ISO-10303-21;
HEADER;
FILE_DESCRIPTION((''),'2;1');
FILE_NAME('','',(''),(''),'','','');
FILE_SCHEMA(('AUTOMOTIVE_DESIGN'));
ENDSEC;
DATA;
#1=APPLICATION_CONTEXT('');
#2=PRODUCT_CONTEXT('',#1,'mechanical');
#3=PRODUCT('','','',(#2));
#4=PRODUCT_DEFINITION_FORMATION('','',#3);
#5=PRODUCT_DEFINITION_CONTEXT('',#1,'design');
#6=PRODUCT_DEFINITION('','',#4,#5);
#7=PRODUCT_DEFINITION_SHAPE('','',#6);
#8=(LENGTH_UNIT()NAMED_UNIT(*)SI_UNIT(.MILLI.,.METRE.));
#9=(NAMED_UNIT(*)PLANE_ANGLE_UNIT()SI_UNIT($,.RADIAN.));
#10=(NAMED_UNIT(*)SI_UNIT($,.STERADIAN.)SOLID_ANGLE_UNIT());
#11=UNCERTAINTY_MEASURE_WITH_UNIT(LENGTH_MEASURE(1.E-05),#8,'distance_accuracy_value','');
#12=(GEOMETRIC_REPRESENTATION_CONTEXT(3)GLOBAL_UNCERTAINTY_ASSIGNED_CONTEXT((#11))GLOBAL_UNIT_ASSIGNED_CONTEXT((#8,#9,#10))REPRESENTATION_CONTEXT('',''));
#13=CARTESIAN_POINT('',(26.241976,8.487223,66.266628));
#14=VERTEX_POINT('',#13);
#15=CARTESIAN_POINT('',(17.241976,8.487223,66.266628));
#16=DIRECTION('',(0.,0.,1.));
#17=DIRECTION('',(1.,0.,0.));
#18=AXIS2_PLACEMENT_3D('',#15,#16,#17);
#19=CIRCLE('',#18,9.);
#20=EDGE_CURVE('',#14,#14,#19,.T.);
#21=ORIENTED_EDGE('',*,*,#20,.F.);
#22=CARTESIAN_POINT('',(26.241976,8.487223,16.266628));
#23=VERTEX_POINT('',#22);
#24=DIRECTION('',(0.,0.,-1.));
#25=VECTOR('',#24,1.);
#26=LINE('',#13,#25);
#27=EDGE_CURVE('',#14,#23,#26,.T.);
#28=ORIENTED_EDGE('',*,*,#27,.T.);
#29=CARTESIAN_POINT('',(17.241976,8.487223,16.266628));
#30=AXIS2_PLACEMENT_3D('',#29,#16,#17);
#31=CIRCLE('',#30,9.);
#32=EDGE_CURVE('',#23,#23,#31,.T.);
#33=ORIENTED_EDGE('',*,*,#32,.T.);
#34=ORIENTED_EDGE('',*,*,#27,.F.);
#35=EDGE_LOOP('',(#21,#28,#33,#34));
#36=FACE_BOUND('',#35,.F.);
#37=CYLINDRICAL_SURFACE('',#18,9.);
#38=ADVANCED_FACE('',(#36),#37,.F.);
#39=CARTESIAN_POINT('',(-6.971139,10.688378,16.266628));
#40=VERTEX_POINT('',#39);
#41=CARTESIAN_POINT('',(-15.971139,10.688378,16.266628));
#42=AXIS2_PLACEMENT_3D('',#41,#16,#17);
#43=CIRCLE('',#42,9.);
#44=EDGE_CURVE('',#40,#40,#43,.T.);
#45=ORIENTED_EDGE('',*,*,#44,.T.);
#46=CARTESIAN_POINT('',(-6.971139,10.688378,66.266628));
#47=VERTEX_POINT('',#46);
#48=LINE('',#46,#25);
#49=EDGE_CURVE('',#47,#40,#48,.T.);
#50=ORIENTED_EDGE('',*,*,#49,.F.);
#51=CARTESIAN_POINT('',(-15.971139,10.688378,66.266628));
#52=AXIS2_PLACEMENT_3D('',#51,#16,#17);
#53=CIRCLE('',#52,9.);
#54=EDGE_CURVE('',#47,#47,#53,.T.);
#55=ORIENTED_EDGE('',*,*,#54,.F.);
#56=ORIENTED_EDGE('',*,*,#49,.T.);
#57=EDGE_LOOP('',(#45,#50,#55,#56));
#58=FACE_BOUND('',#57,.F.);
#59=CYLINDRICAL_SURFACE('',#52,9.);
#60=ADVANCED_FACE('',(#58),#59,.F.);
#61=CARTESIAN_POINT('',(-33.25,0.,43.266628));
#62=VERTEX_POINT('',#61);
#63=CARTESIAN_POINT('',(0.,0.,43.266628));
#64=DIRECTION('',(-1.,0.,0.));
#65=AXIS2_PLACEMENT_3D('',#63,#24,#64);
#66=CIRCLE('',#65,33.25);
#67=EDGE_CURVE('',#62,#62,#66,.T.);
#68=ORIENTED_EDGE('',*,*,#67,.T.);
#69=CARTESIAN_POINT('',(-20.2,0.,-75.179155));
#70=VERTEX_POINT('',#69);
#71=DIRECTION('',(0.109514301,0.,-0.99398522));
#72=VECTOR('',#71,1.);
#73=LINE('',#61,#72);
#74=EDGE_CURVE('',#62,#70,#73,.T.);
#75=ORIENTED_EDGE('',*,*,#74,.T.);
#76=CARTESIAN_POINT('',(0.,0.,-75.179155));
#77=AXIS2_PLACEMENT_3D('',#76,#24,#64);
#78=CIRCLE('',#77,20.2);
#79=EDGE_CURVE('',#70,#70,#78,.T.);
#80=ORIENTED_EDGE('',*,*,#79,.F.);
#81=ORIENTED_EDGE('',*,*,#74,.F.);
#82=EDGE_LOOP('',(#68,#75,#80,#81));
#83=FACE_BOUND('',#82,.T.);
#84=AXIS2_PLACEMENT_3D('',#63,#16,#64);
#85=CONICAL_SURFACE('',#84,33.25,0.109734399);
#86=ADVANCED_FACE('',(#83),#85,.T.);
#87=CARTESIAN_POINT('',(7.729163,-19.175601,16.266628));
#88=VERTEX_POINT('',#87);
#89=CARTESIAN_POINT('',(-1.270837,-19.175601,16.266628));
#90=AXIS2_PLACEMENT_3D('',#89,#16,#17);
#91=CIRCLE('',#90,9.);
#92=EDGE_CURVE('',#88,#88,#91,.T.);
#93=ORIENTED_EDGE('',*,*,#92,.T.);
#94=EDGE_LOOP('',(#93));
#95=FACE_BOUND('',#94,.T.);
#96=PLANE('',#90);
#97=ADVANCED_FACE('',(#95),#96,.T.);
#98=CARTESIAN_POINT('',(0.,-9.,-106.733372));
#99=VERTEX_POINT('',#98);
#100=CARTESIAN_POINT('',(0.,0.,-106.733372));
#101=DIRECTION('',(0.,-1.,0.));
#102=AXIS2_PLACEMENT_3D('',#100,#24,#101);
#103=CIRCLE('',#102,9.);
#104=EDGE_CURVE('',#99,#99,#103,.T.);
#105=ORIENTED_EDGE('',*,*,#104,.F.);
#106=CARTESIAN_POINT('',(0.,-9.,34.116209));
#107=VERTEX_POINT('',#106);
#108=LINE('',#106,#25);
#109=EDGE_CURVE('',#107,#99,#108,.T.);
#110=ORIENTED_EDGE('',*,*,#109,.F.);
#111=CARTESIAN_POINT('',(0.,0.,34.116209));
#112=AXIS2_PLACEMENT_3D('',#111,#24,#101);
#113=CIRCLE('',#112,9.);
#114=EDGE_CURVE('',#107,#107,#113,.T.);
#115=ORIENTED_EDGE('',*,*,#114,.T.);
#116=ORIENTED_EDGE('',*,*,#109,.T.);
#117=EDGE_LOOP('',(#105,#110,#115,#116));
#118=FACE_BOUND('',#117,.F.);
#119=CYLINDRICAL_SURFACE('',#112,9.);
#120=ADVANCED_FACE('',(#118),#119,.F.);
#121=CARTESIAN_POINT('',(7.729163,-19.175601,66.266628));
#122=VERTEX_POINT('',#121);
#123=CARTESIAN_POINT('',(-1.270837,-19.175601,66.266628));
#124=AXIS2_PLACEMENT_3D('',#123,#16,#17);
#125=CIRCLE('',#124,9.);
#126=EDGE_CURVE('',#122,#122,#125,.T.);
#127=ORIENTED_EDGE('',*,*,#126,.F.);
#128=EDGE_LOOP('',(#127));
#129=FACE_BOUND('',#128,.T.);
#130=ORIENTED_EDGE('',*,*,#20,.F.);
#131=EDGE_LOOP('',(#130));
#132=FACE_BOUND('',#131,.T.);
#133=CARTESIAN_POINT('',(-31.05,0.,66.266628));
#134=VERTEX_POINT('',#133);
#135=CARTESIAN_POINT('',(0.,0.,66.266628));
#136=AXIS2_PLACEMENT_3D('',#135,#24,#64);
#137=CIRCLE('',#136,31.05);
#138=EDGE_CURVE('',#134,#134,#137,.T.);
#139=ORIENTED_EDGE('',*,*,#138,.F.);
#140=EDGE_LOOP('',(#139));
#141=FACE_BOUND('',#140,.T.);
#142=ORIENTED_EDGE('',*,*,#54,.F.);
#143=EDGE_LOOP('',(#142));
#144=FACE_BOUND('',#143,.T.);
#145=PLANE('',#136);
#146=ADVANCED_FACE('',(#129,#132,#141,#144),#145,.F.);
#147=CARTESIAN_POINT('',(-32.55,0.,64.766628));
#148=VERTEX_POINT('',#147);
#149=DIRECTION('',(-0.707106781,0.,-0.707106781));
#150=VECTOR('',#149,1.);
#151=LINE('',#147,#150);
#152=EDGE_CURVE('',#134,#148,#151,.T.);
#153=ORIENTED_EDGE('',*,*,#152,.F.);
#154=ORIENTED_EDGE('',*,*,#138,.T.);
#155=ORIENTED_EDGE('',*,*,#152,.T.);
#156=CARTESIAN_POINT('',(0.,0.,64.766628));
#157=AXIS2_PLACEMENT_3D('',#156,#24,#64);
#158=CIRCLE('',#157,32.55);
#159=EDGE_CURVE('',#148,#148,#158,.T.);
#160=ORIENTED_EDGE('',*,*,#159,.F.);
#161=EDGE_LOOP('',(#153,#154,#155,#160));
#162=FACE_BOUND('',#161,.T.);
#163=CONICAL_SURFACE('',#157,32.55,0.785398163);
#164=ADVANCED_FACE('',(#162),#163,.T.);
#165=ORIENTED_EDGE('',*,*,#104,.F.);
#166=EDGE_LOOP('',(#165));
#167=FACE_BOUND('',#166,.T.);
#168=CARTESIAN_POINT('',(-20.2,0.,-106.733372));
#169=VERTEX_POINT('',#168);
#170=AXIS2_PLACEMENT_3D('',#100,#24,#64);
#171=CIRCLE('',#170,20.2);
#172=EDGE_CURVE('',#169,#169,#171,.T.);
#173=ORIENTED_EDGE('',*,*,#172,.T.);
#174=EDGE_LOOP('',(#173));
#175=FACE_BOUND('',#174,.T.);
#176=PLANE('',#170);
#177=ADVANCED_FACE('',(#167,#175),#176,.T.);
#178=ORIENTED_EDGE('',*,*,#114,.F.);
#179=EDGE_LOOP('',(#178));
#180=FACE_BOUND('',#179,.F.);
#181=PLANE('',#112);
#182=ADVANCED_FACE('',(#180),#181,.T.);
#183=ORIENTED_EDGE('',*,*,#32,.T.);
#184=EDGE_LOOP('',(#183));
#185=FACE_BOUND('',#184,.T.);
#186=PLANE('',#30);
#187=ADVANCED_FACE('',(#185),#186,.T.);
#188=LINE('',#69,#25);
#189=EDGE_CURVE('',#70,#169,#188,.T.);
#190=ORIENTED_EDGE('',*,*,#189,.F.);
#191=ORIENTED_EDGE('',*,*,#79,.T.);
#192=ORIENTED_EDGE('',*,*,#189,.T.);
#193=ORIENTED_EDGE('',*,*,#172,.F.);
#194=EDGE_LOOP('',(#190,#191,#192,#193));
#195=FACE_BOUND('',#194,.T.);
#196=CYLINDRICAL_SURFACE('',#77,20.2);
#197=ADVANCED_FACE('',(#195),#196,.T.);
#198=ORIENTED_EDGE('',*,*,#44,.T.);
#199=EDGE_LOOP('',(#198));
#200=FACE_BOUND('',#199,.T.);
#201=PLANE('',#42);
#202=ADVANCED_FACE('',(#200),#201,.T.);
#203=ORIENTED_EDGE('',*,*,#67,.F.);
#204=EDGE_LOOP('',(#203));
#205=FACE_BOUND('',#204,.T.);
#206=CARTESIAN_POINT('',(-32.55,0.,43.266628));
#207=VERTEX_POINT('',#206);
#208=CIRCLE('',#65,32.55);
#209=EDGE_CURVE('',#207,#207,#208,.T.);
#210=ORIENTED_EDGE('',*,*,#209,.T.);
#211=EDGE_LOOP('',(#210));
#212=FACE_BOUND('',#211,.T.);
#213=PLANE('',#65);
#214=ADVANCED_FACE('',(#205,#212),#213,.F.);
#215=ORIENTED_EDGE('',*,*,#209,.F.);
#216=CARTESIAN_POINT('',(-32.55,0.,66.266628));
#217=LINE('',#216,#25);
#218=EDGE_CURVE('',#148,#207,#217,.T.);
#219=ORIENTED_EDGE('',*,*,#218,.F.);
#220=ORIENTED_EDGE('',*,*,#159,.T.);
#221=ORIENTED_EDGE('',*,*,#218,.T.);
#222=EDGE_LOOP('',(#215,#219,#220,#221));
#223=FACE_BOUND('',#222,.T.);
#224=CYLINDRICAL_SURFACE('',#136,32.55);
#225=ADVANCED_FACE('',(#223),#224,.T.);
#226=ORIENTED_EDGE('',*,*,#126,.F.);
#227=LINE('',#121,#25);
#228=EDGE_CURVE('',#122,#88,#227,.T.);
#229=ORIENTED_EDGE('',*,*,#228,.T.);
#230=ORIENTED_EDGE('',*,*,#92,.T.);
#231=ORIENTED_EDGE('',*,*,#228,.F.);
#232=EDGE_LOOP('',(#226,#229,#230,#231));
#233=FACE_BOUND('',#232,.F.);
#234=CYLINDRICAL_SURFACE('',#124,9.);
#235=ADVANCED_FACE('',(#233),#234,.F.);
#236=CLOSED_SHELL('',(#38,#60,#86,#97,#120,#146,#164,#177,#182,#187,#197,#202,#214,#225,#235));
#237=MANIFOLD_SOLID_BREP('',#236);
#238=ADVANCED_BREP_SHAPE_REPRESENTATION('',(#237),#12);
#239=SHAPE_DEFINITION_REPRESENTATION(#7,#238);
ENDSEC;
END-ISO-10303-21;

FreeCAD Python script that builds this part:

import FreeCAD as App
import Part
import Sketcher

V = App.Vector


def edges_at(feature, points):
    """Names of the edges that pass closest to the given points."""
    edges = feature.Shape.Edges
    near = lambda p: min(range(len(edges)), key=lambda i: edges[i].distToShape(Part.Vertex(*p))[0])
    return sorted({f"Edge{near(p) + 1}" for p in points})

doc = App.newDocument("Part")
params = doc.addObject("Spreadsheet::Sheet", "Params")
for row, (alias, value) in enumerate([
    ("sketch1_height", "23 mm"),
    ("sketch1_height2", "173 mm"),
    ("sketch1_width", "0.7 mm"),
    ("sketch1_width2", "20.2 mm"),
    ("sketch1_width3", "32.55 mm"),
    ("revolution_angle", "360 deg"),
    ("chamfer_size", "1.5 mm"),
    ("sketch2_width", "9 mm"),
    ("groove_angle", "360 deg"),
    ("sketch3_diameter", "18 mm"),
    ("pocket1_length", "50 mm"),
], start=1):
    params.set(f"A{row}", alias)
    params.set(f"B{row}", "=" + value)
    params.setAlias(f"B{row}", alias)

body = doc.addObject("PartDesign::Body", "Body")

sketch1 = doc.addObject("Sketcher::SketchObject", "Sketch")
body.addObject(sketch1)
sketch1.AttachmentSupport = (doc.XZ_Plane, [""])
sketch1.MapMode = "FlatFace"
sketch1.addGeometry([
    Part.LineSegment(V(0, 66.3, 0), V(-32.5, 66.3, 0)),
    Part.LineSegment(V(-32.5, 66.3, 0), V(-32.5, 43.3, 0)),
    Part.LineSegment(V(-32.5, 43.3, 0), V(-33.2, 43.3, 0)),
    Part.LineSegment(V(-33.2, 43.3, 0), V(-20.2, -75.2, 0)),
    Part.LineSegment(V(-20.2, -75.2, 0), V(-20.2, -106.7, 0)),
    Part.LineSegment(V(-20.2, -106.7, 0), V(0, -106.7, 0)),
    Part.LineSegment(V(0, -106.7, 0), V(0, 66.3, 0)),
], False)
sketch1.addConstraint([
    Sketcher.Constraint("Coincident", 0, 2, 1, 1),
    Sketcher.Constraint("Coincident", 1, 2, 2, 1),
    Sketcher.Constraint("Coincident", 2, 2, 3, 1),
    Sketcher.Constraint("Coincident", 3, 2, 4, 1),
    Sketcher.Constraint("Coincident", 4, 2, 5, 1),
    Sketcher.Constraint("Coincident", 5, 2, 6, 1),
    Sketcher.Constraint("Coincident", 6, 2, 0, 1),
    Sketcher.Constraint("Horizontal", 0),
    Sketcher.Constraint("Vertical", 1),
    Sketcher.Constraint("Horizontal", 2),
    Sketcher.Constraint("Vertical", 4),
    Sketcher.Constraint("Horizontal", 5),
    Sketcher.Constraint("Vertical", 6),
    Sketcher.Constraint("PointOnObject", 5, 2, -2),
    Sketcher.Constraint("DistanceY", 1, 2, 1, 1, 23.0),
    Sketcher.Constraint("DistanceY", 6, 1, 6, 2, 173.0),
    Sketcher.Constraint("DistanceX", 2, 2, 2, 1, 0.7),
    Sketcher.Constraint("DistanceX", 5, 1, 5, 2, 20.2),
    Sketcher.Constraint("DistanceX", 0, 2, 0, 1, 32.55),
    Sketcher.Constraint("Distance", 3, 119.162519),
    Sketcher.Constraint("DistanceY", -1, 1, 0, 2, 66.266628),
])
sketch1.setExpression("Constraints[14]", "Params.sketch1_height")
sketch1.setExpression("Constraints[15]", "Params.sketch1_height2")
sketch1.setExpression("Constraints[16]", "Params.sketch1_width")
sketch1.setExpression("Constraints[17]", "Params.sketch1_width2")
sketch1.setExpression("Constraints[18]", "Params.sketch1_width3")
revolution = doc.addObject("PartDesign::Revolution", "Revolution")
body.addObject(revolution)
revolution.Profile = sketch1
revolution.ReferenceAxis = (sketch1, ["V_Axis"])
revolution.setExpression("Angle", "Params.revolution_angle")
doc.recompute()

chamfer = doc.addObject("PartDesign::Chamfer", "Chamfer")
body.addObject(chamfer)
chamfer.Base = (revolution, edges_at(revolution, [(32.55, 0, 66.267)]))
chamfer.setExpression("Size", "Params.chamfer_size")

sketch2 = doc.addObject("Sketcher::SketchObject", "Sketch001")
body.addObject(sketch2)
sketch2.AttachmentSupport = (doc.YZ_Plane, [""])
sketch2.MapMode = "FlatFace"
sketch2.addGeometry([
    Part.LineSegment(V(-9, -120, 0), V(0, -120, 0)),
    Part.LineSegment(V(0, -120, 0), V(0, 34, 0)),
    Part.LineSegment(V(0, 34, 0), V(-9, 34, 0)),
    Part.LineSegment(V(-9, 34, 0), V(-9, -120, 0)),
], False)
sketch2.addConstraint([
    Sketcher.Constraint("Coincident", 0, 2, 1, 1),
    Sketcher.Constraint("Coincident", 1, 2, 2, 1),
    Sketcher.Constraint("Coincident", 2, 2, 3, 1),
    Sketcher.Constraint("Coincident", 3, 2, 0, 1),
    Sketcher.Constraint("Horizontal", 0),
    Sketcher.Constraint("Vertical", 1),
    Sketcher.Constraint("Horizontal", 2),
    Sketcher.Constraint("Vertical", 3),
    Sketcher.Constraint("PointOnObject", 0, 2, -2),
    Sketcher.Constraint("DistanceX", 0, 1, 0, 2, 9.0),
    Sketcher.Constraint("DistanceY", 0, 2, -1, 1, 120.0),
    Sketcher.Constraint("DistanceY", 1, 1, 1, 2, 154.116209),
])
sketch2.setExpression("Constraints[9]", "Params.sketch2_width")
groove = doc.addObject("PartDesign::Groove", "Groove")
body.addObject(groove)
groove.Profile = sketch2
groove.ReferenceAxis = (sketch2, ["V_Axis"])
groove.setExpression("Angle", "Params.groove_angle")

sketch3 = doc.addObject("Sketcher::SketchObject", "Sketch002")
body.addObject(sketch3)
sketch3.AttachmentSupport = (doc.XY_Plane, [""])
sketch3.MapMode = "FlatFace"
sketch3.AttachmentOffset = App.Placement(V(0, 0, 66.266628), App.Rotation())
sketch3.addGeometry([
    Part.Circle(V(-16, 11, 0), V(0, 0, 1), 9),
    Part.Circle(V(17, 8, 0), V(0, 0, 1), 9),
    Part.Circle(V(-1, -19, 0), V(0, 0, 1), 9),
], False)
sketch3.addConstraint([
    Sketcher.Constraint("Equal", 0, 1),
    Sketcher.Constraint("Equal", 1, 2),
    Sketcher.Constraint("Diameter", 0, 18.0),
    Sketcher.Constraint("DistanceY", 2, 3, -1, 1, 19.175601),
    Sketcher.Constraint("DistanceX", 0, 3, -1, 1, 15.971139),
    Sketcher.Constraint("DistanceY", 2, 3, 0, 3, 29.863979),
    Sketcher.Constraint("DistanceX", -1, 1, 1, 3, 17.241976),
    Sketcher.Constraint("DistanceY", -1, 1, 1, 3, 8.487223),
    Sketcher.Constraint("DistanceX", 2, 3, -1, 1, 1.270837),
])
sketch3.setExpression("Constraints[2]", "Params.sketch3_diameter")
pocket1 = doc.addObject("PartDesign::Pocket", "Pocket")
body.addObject(pocket1)
pocket1.Profile = sketch3
pocket1.setExpression("Length", "Params.pocket1_length")

doc.recompute()
